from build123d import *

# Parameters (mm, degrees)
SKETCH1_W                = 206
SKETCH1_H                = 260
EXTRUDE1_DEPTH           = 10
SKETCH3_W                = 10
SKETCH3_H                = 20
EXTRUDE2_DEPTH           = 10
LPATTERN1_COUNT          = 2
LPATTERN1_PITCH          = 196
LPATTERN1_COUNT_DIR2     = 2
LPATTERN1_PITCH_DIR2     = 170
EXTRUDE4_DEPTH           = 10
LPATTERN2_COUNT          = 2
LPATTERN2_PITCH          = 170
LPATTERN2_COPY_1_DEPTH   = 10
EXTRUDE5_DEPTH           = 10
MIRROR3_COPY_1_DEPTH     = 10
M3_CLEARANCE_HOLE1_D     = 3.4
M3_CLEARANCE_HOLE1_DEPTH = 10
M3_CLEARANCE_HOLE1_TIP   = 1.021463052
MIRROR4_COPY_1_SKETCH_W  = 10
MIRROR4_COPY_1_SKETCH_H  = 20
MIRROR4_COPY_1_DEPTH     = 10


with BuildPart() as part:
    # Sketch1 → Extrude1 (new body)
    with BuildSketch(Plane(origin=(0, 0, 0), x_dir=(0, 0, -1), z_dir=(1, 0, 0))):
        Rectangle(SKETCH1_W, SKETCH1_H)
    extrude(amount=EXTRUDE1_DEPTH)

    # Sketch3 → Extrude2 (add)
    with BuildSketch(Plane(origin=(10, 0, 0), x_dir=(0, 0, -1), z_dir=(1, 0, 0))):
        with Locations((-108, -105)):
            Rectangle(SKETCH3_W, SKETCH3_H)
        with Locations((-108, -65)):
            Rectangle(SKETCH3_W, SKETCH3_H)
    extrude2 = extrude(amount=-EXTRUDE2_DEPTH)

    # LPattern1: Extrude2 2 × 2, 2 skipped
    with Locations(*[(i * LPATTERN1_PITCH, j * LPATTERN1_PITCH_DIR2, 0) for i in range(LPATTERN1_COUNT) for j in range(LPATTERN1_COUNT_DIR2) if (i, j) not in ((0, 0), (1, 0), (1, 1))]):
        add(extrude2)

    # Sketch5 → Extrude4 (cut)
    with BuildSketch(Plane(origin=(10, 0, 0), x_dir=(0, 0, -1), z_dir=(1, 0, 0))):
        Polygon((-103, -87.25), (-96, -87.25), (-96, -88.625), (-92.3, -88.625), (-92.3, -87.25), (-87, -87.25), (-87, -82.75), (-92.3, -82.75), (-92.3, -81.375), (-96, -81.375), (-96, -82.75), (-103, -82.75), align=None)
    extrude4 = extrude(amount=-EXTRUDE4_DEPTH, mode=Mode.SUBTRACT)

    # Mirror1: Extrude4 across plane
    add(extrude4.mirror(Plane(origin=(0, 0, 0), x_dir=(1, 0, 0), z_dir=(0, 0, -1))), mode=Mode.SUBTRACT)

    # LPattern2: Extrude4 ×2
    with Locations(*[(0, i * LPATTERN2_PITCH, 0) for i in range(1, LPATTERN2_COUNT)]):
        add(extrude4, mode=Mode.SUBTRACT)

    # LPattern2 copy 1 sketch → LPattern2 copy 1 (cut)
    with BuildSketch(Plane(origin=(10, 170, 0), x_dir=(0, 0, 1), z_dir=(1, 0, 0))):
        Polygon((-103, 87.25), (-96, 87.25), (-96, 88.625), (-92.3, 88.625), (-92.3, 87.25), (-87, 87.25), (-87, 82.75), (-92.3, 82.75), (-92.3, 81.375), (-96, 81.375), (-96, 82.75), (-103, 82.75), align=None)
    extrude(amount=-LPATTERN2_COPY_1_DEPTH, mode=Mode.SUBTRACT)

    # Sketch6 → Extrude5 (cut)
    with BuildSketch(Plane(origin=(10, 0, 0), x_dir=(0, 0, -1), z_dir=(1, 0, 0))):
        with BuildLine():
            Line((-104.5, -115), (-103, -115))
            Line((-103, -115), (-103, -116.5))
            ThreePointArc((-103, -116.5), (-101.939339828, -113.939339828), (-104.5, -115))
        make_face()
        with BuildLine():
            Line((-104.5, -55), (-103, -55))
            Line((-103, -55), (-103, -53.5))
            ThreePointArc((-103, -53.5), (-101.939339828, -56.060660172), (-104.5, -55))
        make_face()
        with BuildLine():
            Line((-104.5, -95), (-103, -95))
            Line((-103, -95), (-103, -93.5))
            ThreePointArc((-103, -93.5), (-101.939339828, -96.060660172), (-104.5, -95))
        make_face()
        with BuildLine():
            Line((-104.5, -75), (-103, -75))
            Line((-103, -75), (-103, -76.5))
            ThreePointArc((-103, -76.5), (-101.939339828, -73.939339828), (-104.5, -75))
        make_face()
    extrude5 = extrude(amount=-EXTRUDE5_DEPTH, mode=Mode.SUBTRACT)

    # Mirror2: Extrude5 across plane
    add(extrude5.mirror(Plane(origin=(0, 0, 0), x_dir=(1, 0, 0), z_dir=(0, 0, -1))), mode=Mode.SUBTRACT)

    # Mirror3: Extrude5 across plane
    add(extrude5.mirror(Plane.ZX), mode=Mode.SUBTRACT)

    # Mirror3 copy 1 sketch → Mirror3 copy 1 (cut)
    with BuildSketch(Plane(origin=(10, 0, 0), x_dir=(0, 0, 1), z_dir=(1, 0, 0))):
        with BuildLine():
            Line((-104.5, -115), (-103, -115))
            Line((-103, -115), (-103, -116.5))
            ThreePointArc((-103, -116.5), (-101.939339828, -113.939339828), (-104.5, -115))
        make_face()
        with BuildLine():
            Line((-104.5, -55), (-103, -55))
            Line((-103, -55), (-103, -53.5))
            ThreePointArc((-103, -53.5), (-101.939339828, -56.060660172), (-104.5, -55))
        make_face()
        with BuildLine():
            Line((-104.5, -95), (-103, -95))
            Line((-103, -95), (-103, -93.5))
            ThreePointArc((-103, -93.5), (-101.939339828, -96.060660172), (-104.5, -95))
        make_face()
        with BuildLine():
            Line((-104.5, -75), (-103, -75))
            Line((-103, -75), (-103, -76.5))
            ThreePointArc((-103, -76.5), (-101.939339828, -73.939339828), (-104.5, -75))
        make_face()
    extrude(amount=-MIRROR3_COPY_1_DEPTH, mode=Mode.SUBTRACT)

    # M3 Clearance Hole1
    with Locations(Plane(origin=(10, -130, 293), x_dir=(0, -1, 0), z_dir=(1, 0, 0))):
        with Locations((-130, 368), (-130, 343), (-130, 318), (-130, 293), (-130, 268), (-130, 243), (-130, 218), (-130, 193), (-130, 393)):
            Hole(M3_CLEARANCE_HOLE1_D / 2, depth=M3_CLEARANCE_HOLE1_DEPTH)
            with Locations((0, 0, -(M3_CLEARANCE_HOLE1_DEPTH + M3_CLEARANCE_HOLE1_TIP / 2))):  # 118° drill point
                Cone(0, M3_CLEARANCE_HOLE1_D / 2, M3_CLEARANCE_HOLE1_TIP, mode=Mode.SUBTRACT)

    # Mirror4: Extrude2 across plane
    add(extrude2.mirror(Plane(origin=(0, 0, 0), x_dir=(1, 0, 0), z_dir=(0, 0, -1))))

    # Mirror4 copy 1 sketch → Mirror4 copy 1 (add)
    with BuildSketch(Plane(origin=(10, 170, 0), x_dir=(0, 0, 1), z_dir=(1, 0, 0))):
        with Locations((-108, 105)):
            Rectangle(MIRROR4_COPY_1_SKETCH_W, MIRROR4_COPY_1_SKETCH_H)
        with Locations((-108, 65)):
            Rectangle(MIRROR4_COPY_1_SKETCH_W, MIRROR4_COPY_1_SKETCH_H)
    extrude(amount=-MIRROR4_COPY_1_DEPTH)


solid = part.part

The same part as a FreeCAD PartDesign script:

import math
import FreeCAD as App
import Part
import Sketcher
from FreeCAD import Vector
Q = App.Units.Quantity


def add_polygon(sketch, points):
    """Adds a closed chain of lines whose ends are joined by coincident constraints."""
    first, n = sketch.GeometryCount, len(points)
    for a, b in zip(points, points[1:] + points[:1]):
        sketch.addGeometry(Part.LineSegment(App.Vector(*a, 0), App.Vector(*b, 0)), False)
    for i in range(n):
        sketch.addConstraint(Sketcher.Constraint("Coincident", first + i, 2, first + (i + 1) % n, 1))

doc = App.newDocument("Part")
body = doc.addObject("PartDesign::Body", "Body")

sketch1 = doc.addObject("Sketcher::SketchObject", "Sketch")
body.addObject(sketch1)
sketch1.AttachmentSupport = (doc.YZ_Plane, [""])
sketch1.MapMode = "FlatFace"
add_polygon(sketch1, [(130, 103), (-130, 103), (-130, -103), (130, -103)])
sketch1.addConstraint([
    Sketcher.Constraint("Horizontal", 0),
    Sketcher.Constraint("Vertical", 1),
    Sketcher.Constraint("Horizontal", 2),
    Sketcher.Constraint("Vertical", 3),
    Sketcher.Constraint("Symmetric", 0, 2, 2, 2, -1, 1),
    Sketcher.Constraint("DistanceX", 0, 2, 0, 1, Q("260 mm")),
    Sketcher.Constraint("DistanceY", 1, 2, 1, 1, Q("206 mm")),
])
pad1 = doc.addObject("PartDesign::Pad", "Pad")
body.addObject(pad1)
pad1.Profile = sketch1
pad1.Length = 10

sketch2 = doc.addObject("Sketcher::SketchObject", "Sketch001")
body.addObject(sketch2)
sketch2.AttachmentSupport = (doc.YZ_Plane, [""])
sketch2.MapMode = "FlatFace"
sketch2.AttachmentOffset = App.Placement(Vector(0, 0, 10), App.Rotation())
add_polygon(sketch2, [(-95, 113), (-115, 113), (-115, 103), (-95, 103)])
add_polygon(sketch2, [(-55, 113), (-75, 113), (-75, 103), (-55, 103)])
sketch2.addConstraint([
    Sketcher.Constraint("Horizontal", 0),
    Sketcher.Constraint("Vertical", 1),
    Sketcher.Constraint("Horizontal", 2),
    Sketcher.Constraint("Vertical", 3),
    Sketcher.Constraint("Horizontal", 4),
    Sketcher.Constraint("Vertical", 5),
    Sketcher.Constraint("Horizontal", 6),
    Sketcher.Constraint("Vertical", 7),
    Sketcher.Constraint("Horizontal", 3, 2, 4, 2),
    Sketcher.Constraint("Horizontal", 2, 2, 5, 2),
    Sketcher.Constraint("Equal", 2, 4),
    Sketcher.Constraint("DistanceX", 0, 2, 0, 1, Q("20 mm")),
    Sketcher.Constraint("DistanceY", 1, 2, 1, 1, Q("10 mm")),
    Sketcher.Constraint("DistanceX", 0, 2, -1, 1, Q("115 mm")),
    Sketcher.Constraint("DistanceY", -1, 1, 0, 2, Q("113 mm")),
    Sketcher.Constraint("DistanceX", 4, 2, -1, 1, Q("75 mm")),
])
pad2 = doc.addObject("PartDesign::Pad", "Pad001")
body.addObject(pad2)
pad2.Profile = sketch2
pad2.Length = 10
pad2.Reversed = True
doc.recompute()

linearpattern = doc.addObject("PartDesign::LinearPattern", "LinearPattern")
body.addObject(linearpattern)
linearpattern.Originals = [pad2]
linearpattern.Direction = (doc.Y_Axis, [""])
linearpattern.Mode = "offset"
linearpattern.Offset = 170
linearpattern.Occurrences = 2
body.Tip = linearpattern

sketch3 = doc.addObject("Sketcher::SketchObject", "Sketch002")
body.addObject(sketch3)
sketch3.AttachmentSupport = (doc.YZ_Plane, [""])
sketch3.MapMode = "FlatFace"
sketch3.AttachmentOffset = App.Placement(Vector(0, 0, 10), App.Rotation())
add_polygon(sketch3, [(-87.2, 103), (-87.2, 96), (-88.6, 96), (-88.6, 92.3), (-87.2, 92.3), (-87.2, 87), (-82.8, 87), (-82.8, 92.3), (-81.4, 92.3), (-81.4, 96), (-82.8, 96), (-82.8, 103)])
sketch3.addConstraint([
    Sketcher.Constraint("Vertical", 0),
    Sketcher.Constraint("Horizontal", 1),
    Sketcher.Constraint("Vertical", 2),
    Sketcher.Constraint("Horizontal", 3),
    Sketcher.Constraint("Vertical", 4),
    Sketcher.Constraint("Horizontal", 5),
    Sketcher.Constraint("Vertical", 6),
    Sketcher.Constraint("Horizontal", 7),
    Sketcher.Constraint("Vertical", 8),
    Sketcher.Constraint("Horizontal", 9),
    Sketcher.Constraint("Vertical", 10),
    Sketcher.Constraint("Horizontal", 11),
    Sketcher.Constraint("Horizontal", 3, 2, 6, 2),
    Sketcher.Constraint("Horizontal", 1, 2, 8, 2),
    Sketcher.Constraint("Vertical", 0, 2, 3, 2),
    Sketcher.Constraint("Vertical", 6, 2, 9, 2),
    Sketcher.Constraint("Equal", 3, 7),
    Sketcher.Constraint("DistanceY", 0, 2, 0, 1, Q("7 mm")),
    Sketcher.Constraint("DistanceX", 5, 1, 5, 2, Q("4.5 mm")),
    Sketcher.Constraint("DistanceY", 2, 2, 2, 1, Q("3.7 mm")),
    Sketcher.Constraint("DistanceY", 4, 2, 4, 1, Q("5.3 mm")),
    Sketcher.Constraint("DistanceY", -1, 1, 0, 2, Q("96 mm")),
    Sketcher.Constraint("DistanceX", 1, 2, 1, 1, Q("1.375 mm")),
    Sketcher.Constraint("DistanceX", 0, 2, -1, 1, Q("87.25 mm")),
])
pocket1 = doc.addObject("PartDesign::Pocket", "Pocket")
body.addObject(pocket1)
pocket1.Profile = sketch3
pocket1.Length = 10
doc.recompute()

mirrored = doc.addObject("PartDesign::Mirrored", "Mirrored")
body.addObject(mirrored)
mirrored.Originals = [pocket1]
mirrored.MirrorPlane = (doc.XY_Plane, [""])
body.Tip = mirrored
doc.recompute()

linearpattern2 = doc.addObject("PartDesign::LinearPattern", "LinearPattern001")
body.addObject(linearpattern2)
linearpattern2.Originals = [pocket1]
linearpattern2.Direction = (doc.Y_Axis, [""])
linearpattern2.Mode = "offset"
linearpattern2.Offset = 170
linearpattern2.Occurrences = 2
body.Tip = linearpattern2

sketch4 = doc.addObject("Sketcher::SketchObject", "Sketch003")
body.addObject(sketch4)
sketch4.AttachmentSupport = (doc.YZ_Plane, [""])
sketch4.MapMode = "FlatFace"
sketch4.AttachmentOffset = App.Placement(Vector(0, 0, 10), App.Rotation())
add_polygon(sketch4, [(82.8, -96), (82.8, -103), (87.2, -103), (87.2, -96), (88.6, -96), (88.6, -92.3), (87.2, -92.3), (87.2, -87), (82.8, -87), (82.8, -92.3), (81.4, -92.3), (81.4, -96)])
sketch4.addConstraint([
    Sketcher.Constraint("Vertical", 0),
    Sketcher.Constraint("Horizontal", 1),
    Sketcher.Constraint("Vertical", 2),
    Sketcher.Constraint("Horizontal", 3),
    Sketcher.Constraint("Vertical", 4),
    Sketcher.Constraint("Horizontal", 5),
    Sketcher.Constraint("Vertical", 6),
    Sketcher.Constraint("Horizontal", 7),
    Sketcher.Constraint("Vertical", 8),
    Sketcher.Constraint("Horizontal", 9),
    Sketcher.Constraint("Vertical", 10),
    Sketcher.Constraint("Horizontal", 11),
    Sketcher.Constraint("Horizontal", 5, 2, 8, 2),
    Sketcher.Constraint("Horizontal", 3, 2, 10, 2),
    Sketcher.Constraint("Vertical", 2, 2, 5, 2),
    Sketcher.Constraint("Vertical", 0, 2, 7, 2),
    Sketcher.Constraint("Equal", 5, 9),
    Sketcher.Constraint("DistanceY", 0, 2, 0, 1, Q("7 mm")),
    Sketcher.Constraint("DistanceX", 1, 1, 1, 2, Q("4.5 mm")),
    Sketcher.Constraint("DistanceY", 4, 1, 4, 2, Q("3.7 mm")),
    Sketcher.Constraint("DistanceY", 6, 1, 6, 2, Q("5.3 mm")),
    Sketcher.Constraint("DistanceY", 0, 2, -1, 1, Q("103 mm")),
    Sketcher.Constraint("DistanceX", 3, 1, 3, 2, Q("1.375 mm")),
    Sketcher.Constraint("DistanceX", -1, 1, 0, 2, Q("82.75 mm")),
])
pocket2 = doc.addObject("PartDesign::Pocket", "Pocket001")
body.addObject(pocket2)
pocket2.Profile = sketch4
pocket2.Length = 10

sketch5 = doc.addObject("Sketcher::SketchObject", "Sketch004")
body.addObject(sketch5)
sketch5.AttachmentSupport = (doc.YZ_Plane, [""])
sketch5.MapMode = "FlatFace"
sketch5.AttachmentOffset = App.Placement(Vector(0, 0, 10), App.Rotation())
sketch5.addGeometry([
    Part.LineSegment(Vector(-115, 104.5, 0), Vector(-115, 103, 0)),
    Part.LineSegment(Vector(-115, 103, 0), Vector(-116.5, 103, 0)),
    Part.ArcOfCircle(Part.Circle(Vector(-115, 103, 0), Vector(0, 0, 1), 1.5), math.radians(180), math.radians(450)),
    Part.LineSegment(Vector(-55, 103, 0), Vector(-55, 104.5, 0)),
    Part.ArcOfCircle(Part.Circle(Vector(-55, 103, 0), Vector(0, 0, 1), 1.5), math.radians(90), math.radians(360)),
    Part.LineSegment(Vector(-53.5, 103, 0), Vector(-55, 103, 0)),
    Part.LineSegment(Vector(-95, 103, 0), Vector(-95, 104.5, 0)),
    Part.ArcOfCircle(Part.Circle(Vector(-95, 103, 0), Vector(0, 0, 1), 1.5), math.radians(90), math.radians(360)),
    Part.LineSegment(Vector(-93.5, 103, 0), Vector(-95, 103, 0)),
    Part.LineSegment(Vector(-75, 104.5, 0), Vector(-75, 103, 0)),
    Part.LineSegment(Vector(-75, 103, 0), Vector(-76.5, 103, 0)),
    Part.ArcOfCircle(Part.Circle(Vector(-75, 103, 0), Vector(0, 0, 1), 1.5), math.radians(180), math.radians(450)),
], False)
sketch5.addConstraint([
    Sketcher.Constraint("Coincident", 0, 2, 1, 1),
    Sketcher.Constraint("Coincident", 1, 2, 2, 1),
    Sketcher.Constraint("Coincident", 2, 2, 0, 1),
    Sketcher.Constraint("Coincident", 3, 2, 4, 1),
    Sketcher.Constraint("Coincident", 4, 2, 5, 1),
    Sketcher.Constraint("Coincident", 5, 2, 3, 1),
    Sketcher.Constraint("Coincident", 6, 2, 7, 1),
    Sketcher.Constraint("Coincident", 7, 2, 8, 1),
    Sketcher.Constraint("Coincident", 8, 2, 6, 1),
    Sketcher.Constraint("Coincident", 9, 2, 10, 1),
    Sketcher.Constraint("Coincident", 10, 2, 11, 1),
    Sketcher.Constraint("Coincident", 11, 2, 9, 1),
    Sketcher.Constraint("Vertical", 0),
    Sketcher.Constraint("Horizontal", 1),
    Sketcher.Constraint("Vertical", 3),
    Sketcher.Constraint("Horizontal", 5),
    Sketcher.Constraint("Vertical", 6),
    Sketcher.Constraint("Horizontal", 8),
    Sketcher.Constraint("Vertical", 9),
    Sketcher.Constraint("Horizontal", 10),
    Sketcher.Constraint("Coincident", 0, 2, 2, 3),
    Sketcher.Constraint("Coincident", 5, 2, 4, 3),
    Sketcher.Constraint("Coincident", 8, 2, 7, 3),
    Sketcher.Constraint("Coincident", 9, 2, 11, 3),
    Sketcher.Constraint("Equal", 2, 4),
    Sketcher.Constraint("Equal", 4, 7),
    Sketcher.Constraint("Equal", 7, 11),
    Sketcher.Constraint("Horizontal", 2, 3, 4, 3),
    Sketcher.Constraint("Horizontal", 4, 3, 7, 3),
    Sketcher.Constraint("Horizontal", 7, 3, 11, 3),
    Sketcher.Constraint("Radius", 2, Q("1.5 mm")),
    Sketcher.Constraint("DistanceX", 2, 3, -1, 1, Q("115 mm")),
    Sketcher.Constraint("DistanceY", -1, 1, 2, 3, Q("103 mm")),
    Sketcher.Constraint("DistanceX", 4, 3, -1, 1, Q("55 mm")),
    Sketcher.Constraint("DistanceX", 7, 3, -1, 1, Q("95 mm")),
    Sketcher.Constraint("DistanceX", 11, 3, -1, 1, Q("75 mm")),
])
pocket3 = doc.addObject("PartDesign::Pocket", "Pocket002")
body.addObject(pocket3)
pocket3.Profile = sketch5
pocket3.Length = 10
doc.recompute()

mirrored2 = doc.addObject("PartDesign::Mirrored", "Mirrored001")
body.addObject(mirrored2)
mirrored2.Originals = [pocket3]
mirrored2.MirrorPlane = (doc.XY_Plane, [""])
body.Tip = mirrored2
doc.recompute()

mirrored3 = doc.addObject("PartDesign::Mirrored", "Mirrored002")
body.addObject(mirrored3)
mirrored3.Originals = [pocket3]
mirrored3.MirrorPlane = (doc.XZ_Plane, [""])
body.Tip = mirrored3

sketch6 = doc.addObject("Sketcher::SketchObject", "Sketch005")
body.addObject(sketch6)
sketch6.AttachmentSupport = (doc.YZ_Plane, [""])
sketch6.MapMode = "FlatFace"
sketch6.AttachmentOffset = App.Placement(Vector(0, 0, 10), App.Rotation())
sketch6.addGeometry([
    Part.LineSegment(Vector(115, -104.5, 0), Vector(115, -103, 0)),
    Part.LineSegment(Vector(115, -103, 0), Vector(116.5, -103, 0)),
    Part.ArcOfCircle(Part.Circle(Vector(115, -103, 0), Vector(0, 0, 1), 1.5), math.radians(0), math.radians(270)),
    Part.LineSegment(Vector(55, -103, 0), Vector(55, -104.5, 0)),
    Part.ArcOfCircle(Part.Circle(Vector(55, -103, 0), Vector(0, 0, 1), 1.5), math.radians(-90), math.radians(180)),
    Part.LineSegment(Vector(53.5, -103, 0), Vector(55, -103, 0)),
    Part.LineSegment(Vector(95, -103, 0), Vector(95, -104.5, 0)),
    Part.ArcOfCircle(Part.Circle(Vector(95, -103, 0), Vector(0, 0, 1), 1.5), math.radians(-90), math.radians(180)),
    Part.LineSegment(Vector(93.5, -103, 0), Vector(95, -103, 0)),
    Part.LineSegment(Vector(75, -104.5, 0), Vector(75, -103, 0)),
    Part.LineSegment(Vector(75, -103, 0), Vector(76.5, -103, 0)),
    Part.ArcOfCircle(Part.Circle(Vector(75, -103, 0), Vector(0, 0, 1), 1.5), math.radians(0), math.radians(270)),
], False)
sketch6.addConstraint([
    Sketcher.Constraint("Coincident", 0, 2, 1, 1),
    Sketcher.Constraint("Coincident", 1, 2, 2, 1),
    Sketcher.Constraint("Coincident", 2, 2, 0, 1),
    Sketcher.Constraint("Coincident", 3, 2, 4, 1),
    Sketcher.Constraint("Coincident", 4, 2, 5, 1),
    Sketcher.Constraint("Coincident", 5, 2, 3, 1),
    Sketcher.Constraint("Coincident", 6, 2, 7, 1),
    Sketcher.Constraint("Coincident", 7, 2, 8, 1),
    Sketcher.Constraint("Coincident", 8, 2, 6, 1),
    Sketcher.Constraint("Coincident", 9, 2, 10, 1),
    Sketcher.Constraint("Coincident", 10, 2, 11, 1),
    Sketcher.Constraint("Coincident", 11, 2, 9, 1),
    Sketcher.Constraint("Vertical", 0),
    Sketcher.Constraint("Horizontal", 1),
    Sketcher.Constraint("Vertical", 3),
    Sketcher.Constraint("Horizontal", 5),
    Sketcher.Constraint("Vertical", 6),
    Sketcher.Constraint("Horizontal", 8),
    Sketcher.Constraint("Vertical", 9),
    Sketcher.Constraint("Horizontal", 10),
    Sketcher.Constraint("Coincident", 0, 2, 2, 3),
    Sketcher.Constraint("Coincident", 5, 2, 4, 3),
    Sketcher.Constraint("Coincident", 8, 2, 7, 3),
    Sketcher.Constraint("Coincident", 9, 2, 11, 3),
    Sketcher.Constraint("Equal", 2, 4),
    Sketcher.Constraint("Equal", 4, 7),
    Sketcher.Constraint("Equal", 7, 11),
    Sketcher.Constraint("Horizontal", 2, 3, 4, 3),
    Sketcher.Constraint("Horizontal", 4, 3, 7, 3),
    Sketcher.Constraint("Horizontal", 7, 3, 11, 3),
    Sketcher.Constraint("Radius", 2, Q("1.5 mm")),
    Sketcher.Constraint("DistanceX", -1, 1, 2, 3, Q("115 mm")),
    Sketcher.Constraint("DistanceY", 2, 3, -1, 1, Q("103 mm")),
    Sketcher.Constraint("DistanceX", -1, 1, 4, 3, Q("55 mm")),
    Sketcher.Constraint("DistanceX", -1, 1, 7, 3, Q("95 mm")),
    Sketcher.Constraint("DistanceX", -1, 1, 11, 3, Q("75 mm")),
])
pocket4 = doc.addObject("PartDesign::Pocket", "Pocket003")
body.addObject(pocket4)
pocket4.Profile = sketch6
pocket4.Length = 10

sketch7 = doc.addObject("Sketcher::SketchObject", "Sketch006")
body.addObject(sketch7)
sketch7.AttachmentSupport = (doc.YZ_Plane, [""])
sketch7.MapMode = "FlatFace"
sketch7.AttachmentOffset = App.Placement(Vector(0, 0, 10), App.Rotation())
sketch7.addGeometry([
    Part.Circle(Vector(0, -75, 0), Vector(0, 0, 1), 1.7),
    Part.Circle(Vector(0, -50, 0), Vector(0, 0, 1), 1.7),
    Part.Circle(Vector(0, -25, 0), Vector(0, 0, 1), 1.7),
    Part.Circle(Vector(0, 0, 0), Vector(0, 0, 1), 1.7),
    Part.Circle(Vector(0, 25, 0), Vector(0, 0, 1), 1.7),
    Part.Circle(Vector(0, 50, 0), Vector(0, 0, 1), 1.7),
    Part.Circle(Vector(0, 75, 0), Vector(0, 0, 1), 1.7),
    Part.Circle(Vector(0, 100, 0), Vector(0, 0, 1), 1.7),
    Part.Circle(Vector(0, -100, 0), Vector(0, 0, 1), 1.7),
], False)
sketch7.addConstraint([
    Sketcher.Constraint("Coincident", 3, 3, -1, 1),
    Sketcher.Constraint("Equal", 0, 1),
    Sketcher.Constraint("Equal", 1, 2),
    Sketcher.Constraint("Equal", 2, 3),
    Sketcher.Constraint("Equal", 3, 4),
    Sketcher.Constraint("Equal", 4, 5),
    Sketcher.Constraint("Equal", 5, 6),
    Sketcher.Constraint("Equal", 6, 7),
    Sketcher.Constraint("Equal", 7, 8),
    Sketcher.Constraint("Symmetric", 2, 3, 4, 3, -1, 1),
    Sketcher.Constraint("Symmetric", 1, 3, 5, 3, -1, 1),
    Sketcher.Constraint("Symmetric", 0, 3, 6, 3, -1, 1),
    Sketcher.Constraint("Symmetric", 7, 3, 8, 3, -1, 1),
    Sketcher.Constraint("PointOnObject", 0, 3, -2),
    Sketcher.Constraint("PointOnObject", 1, 3, -2),
    Sketcher.Constraint("PointOnObject", 2, 3, -2),
    Sketcher.Constraint("PointOnObject", 7, 3, -2),
    Sketcher.Constraint("Diameter", 0, Q("3.4 mm")),
    Sketcher.Constraint("DistanceY", 0, 3, -1, 1, Q("75 mm")),
    Sketcher.Constraint("DistanceY", 1, 3, -1, 1, Q("50 mm")),
    Sketcher.Constraint("DistanceY", 2, 3, -1, 1, Q("25 mm")),
    Sketcher.Constraint("DistanceY", -1, 1, 7, 3, Q("100 mm")),
])
doc.recompute()
hole = doc.addObject("PartDesign::Hole", "Hole")
body.addObject(hole)
hole.Profile = sketch7
hole.ThreadType = "None"
hole.Diameter = 3.4
hole.DepthType = "Dimension"
hole.Depth = 10
hole.DrillPoint = "Angled"
hole.DrillPointAngle = 118
doc.recompute()

mirrored4 = doc.addObject("PartDesign::Mirrored", "Mirrored003")
body.addObject(mirrored4)
mirrored4.Originals = [pad2]
mirrored4.MirrorPlane = (doc.XY_Plane, [""])
body.Tip = mirrored4

sketch8 = doc.addObject("Sketcher::SketchObject", "Sketch007")
body.addObject(sketch8)
sketch8.AttachmentSupport = (doc.YZ_Plane, [""])
sketch8.MapMode = "FlatFace"
sketch8.AttachmentOffset = App.Placement(Vector(0, 0, 10), App.Rotation())
add_polygon(sketch8, [(55, -113), (75, -113), (75, -103), (55, -103)])
add_polygon(sketch8, [(95, -113), (115, -113), (115, -103), (95, -103)])
sketch8.addConstraint([
    Sketcher.Constraint("Horizontal", 0),
    Sketcher.Constraint("Vertical", 1),
    Sketcher.Constraint("Horizontal", 2),
    Sketcher.Constraint("Vertical", 3),
    Sketcher.Constraint("Horizontal", 4),
    Sketcher.Constraint("Vertical", 5),
    Sketcher.Constraint("Horizontal", 6),
    Sketcher.Constraint("Vertical", 7),
    Sketcher.Constraint("Horizontal", 3, 2, 4, 2),
    Sketcher.Constraint("Horizontal", 2, 2, 5, 2),
    Sketcher.Constraint("Equal", 2, 4),
    Sketcher.Constraint("DistanceX", 0, 1, 0, 2, Q("20 mm")),
    Sketcher.Constraint("DistanceY", 1, 1, 1, 2, Q("10 mm")),
    Sketcher.Constraint("DistanceX", -1, 1, 0, 2, Q("75 mm")),
    Sketcher.Constraint("DistanceY", 0, 2, -1, 1, Q("113 mm")),
    Sketcher.Constraint("DistanceX", -1, 1, 4, 2, Q("115 mm")),
])
pad3 = doc.addObject("PartDesign::Pad", "Pad002")
body.addObject(pad3)
pad3.Profile = sketch8
pad3.Length = 10
pad3.Reversed = True

doc.recompute()
